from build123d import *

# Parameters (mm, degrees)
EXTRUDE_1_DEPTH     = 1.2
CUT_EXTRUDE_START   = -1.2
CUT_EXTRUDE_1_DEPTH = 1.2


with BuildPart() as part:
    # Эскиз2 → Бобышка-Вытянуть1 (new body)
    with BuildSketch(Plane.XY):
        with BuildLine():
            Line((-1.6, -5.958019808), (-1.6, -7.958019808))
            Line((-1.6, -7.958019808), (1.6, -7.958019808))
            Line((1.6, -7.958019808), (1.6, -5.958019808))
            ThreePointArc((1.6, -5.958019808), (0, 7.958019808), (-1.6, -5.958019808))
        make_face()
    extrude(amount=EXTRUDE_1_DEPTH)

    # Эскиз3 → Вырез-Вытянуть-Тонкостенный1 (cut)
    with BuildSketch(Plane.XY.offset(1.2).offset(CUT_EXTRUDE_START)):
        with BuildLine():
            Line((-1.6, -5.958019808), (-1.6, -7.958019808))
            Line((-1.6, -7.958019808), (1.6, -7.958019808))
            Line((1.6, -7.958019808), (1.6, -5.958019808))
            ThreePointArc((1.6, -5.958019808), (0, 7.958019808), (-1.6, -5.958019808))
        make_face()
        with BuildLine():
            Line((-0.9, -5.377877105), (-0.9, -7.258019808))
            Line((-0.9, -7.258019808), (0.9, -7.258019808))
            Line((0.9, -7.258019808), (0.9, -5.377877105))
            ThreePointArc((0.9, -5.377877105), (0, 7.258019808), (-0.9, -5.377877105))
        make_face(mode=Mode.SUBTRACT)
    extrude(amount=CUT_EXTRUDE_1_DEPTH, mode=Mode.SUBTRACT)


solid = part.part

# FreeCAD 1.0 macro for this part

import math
import FreeCAD as App
import Part
import Sketcher

doc = App.newDocument("Part")
body = doc.addObject("PartDesign::Body", "Body")

# Sketch on XY plane
sketch1 = doc.addObject("Sketcher::SketchObject", "Sketch")
body.addObject(sketch1)
sketch1.AttachmentSupport = (doc.XY_Plane, [""])
sketch1.MapMode = "FlatFace"
sketch1.addGeometry(Part.LineSegment(App.Vector(-1.6, -6, 0), App.Vector(-1.6, -8, 0)), False)
sketch1.addGeometry(Part.LineSegment(App.Vector(-1.6, -8, 0), App.Vector(1.6, -8, 0)), False)
sketch1.addGeometry(Part.LineSegment(App.Vector(1.6, -8, 0), App.Vector(1.6, -6, 0)), False)
sketch1.addGeometry(Part.ArcOfCircle(Part.Circle(App.Vector(0, 0.9, 0), App.Vector(0, 0, 1), 7), math.radians(-77), math.radians(257)), False)
sketch1.addConstraint(Sketcher.Constraint("Coincident", 0, 2, 1, 1))
sketch1.addConstraint(Sketcher.Constraint("Coincident", 1, 2, 2, 1))
sketch1.addConstraint(Sketcher.Constraint("Coincident", 2, 2, 3, 1))
sketch1.addConstraint(Sketcher.Constraint("Coincident", 3, 2, 0, 1))
sketch1.addConstraint(Sketcher.Constraint("Vertical", 0))
sketch1.addConstraint(Sketcher.Constraint("Horizontal", 1))
sketch1.addConstraint(Sketcher.Constraint("Vertical", 2))
sketch1.addConstraint(Sketcher.Constraint("Symmetric", 2, 2, 3, 2, -2))
sketch1.addConstraint(Sketcher.Constraint("DistanceY", 0, 2, 0, 1, 2.0))
sketch1.addConstraint(Sketcher.Constraint("Radius", 3, 7.05))
sketch1.addConstraint(Sketcher.Constraint("DistanceX", 1, 1, 1, 2, 3.2))
sketch1.addConstraint(Sketcher.Constraint("DistanceY", -1, 1, 3, 3, 0.90802))
pad1 = doc.addObject("PartDesign::Pad", "Pad")
body.addObject(pad1)
pad1.Profile = sketch1
pad1.Length = 1.2

# Sketch on XY plane
sketch2 = doc.addObject("Sketcher::SketchObject", "Sketch001")
body.addObject(sketch2)
sketch2.AttachmentSupport = (doc.XY_Plane, [""])
sketch2.MapMode = "FlatFace"
sketch2.addGeometry(Part.LineSegment(App.Vector(-1.6, -6, 0), App.Vector(-1.6, -8, 0)), False)
sketch2.addGeometry(Part.LineSegment(App.Vector(-1.6, -8, 0), App.Vector(1.6, -8, 0)), False)
sketch2.addGeometry(Part.LineSegment(App.Vector(1.6, -8, 0), App.Vector(1.6, -6, 0)), False)
sketch2.addGeometry(Part.ArcOfCircle(Part.Circle(App.Vector(0, 0.9, 0), App.Vector(0, 0, 1), 7), math.radians(-77), math.radians(257)), False)
sketch2.addGeometry(Part.LineSegment(App.Vector(-0.9, -7.3, 0), App.Vector(-0.9, -5.4, 0)), False)
sketch2.addGeometry(Part.ArcOfCircle(Part.Circle(App.Vector(0, 0.9, 0), App.Vector(0, 0, 1), 6.3), math.radians(-82), math.radians(262)), False)
sketch2.addGeometry(Part.LineSegment(App.Vector(0.9, -5.4, 0), App.Vector(0.9, -7.3, 0)), False)
sketch2.addGeometry(Part.LineSegment(App.Vector(0.9, -7.3, 0), App.Vector(-0.9, -7.3, 0)), False)
sketch2.addConstraint(Sketcher.Constraint("Coincident", 0, 2, 1, 1))
sketch2.addConstraint(Sketcher.Constraint("Coincident", 1, 2, 2, 1))
sketch2.addConstraint(Sketcher.Constraint("Coincident", 2, 2, 3, 1))
sketch2.addConstraint(Sketcher.Constraint("Coincident", 3, 2, 0, 1))
sketch2.addConstraint(Sketcher.Constraint("Coincident", 4, 2, 5, 2))
sketch2.addConstraint(Sketcher.Constraint("Coincident", 5, 1, 6, 1))
sketch2.addConstraint(Sketcher.Constraint("Coincident", 6, 2, 7, 1))
sketch2.addConstraint(Sketcher.Constraint("Coincident", 7, 2, 4, 1))
sketch2.addConstraint(Sketcher.Constraint("Vertical", 0))
sketch2.addConstraint(Sketcher.Constraint("Horizontal", 1))
sketch2.addConstraint(Sketcher.Constraint("Vertical", 2))
sketch2.addConstraint(Sketcher.Constraint("Vertical", 4))
sketch2.addConstraint(Sketcher.Constraint("Vertical", 6))
sketch2.addConstraint(Sketcher.Constraint("Horizontal", 7))
sketch2.addConstraint(Sketcher.Constraint("Coincident", 5, 3, 3, 3))
sketch2.addConstraint(Sketcher.Constraint("Symmetric", 2, 2, 3, 2, -2))
sketch2.addConstraint(Sketcher.Constraint("Horizontal", 4, 2, 5, 1))
sketch2.addConstraint(Sketcher.Constraint("DistanceY", 0, 2, 0, 1, 2.0))
sketch2.addConstraint(Sketcher.Constraint("Radius", 3, 7.05))
sketch2.addConstraint(Sketcher.Constraint("Radius", 5, 6.35))
sketch2.addConstraint(Sketcher.Constraint("DistanceX", 1, 1, 1, 2, 3.2))
sketch2.addConstraint(Sketcher.Constraint("DistanceX", 7, 2, 7, 1, 1.8))
sketch2.addConstraint(Sketcher.Constraint("DistanceY", 1, 2, 6, 2, 0.7))
sketch2.addConstraint(Sketcher.Constraint("DistanceY", -1, 1, 3, 3, 0.90802))
pocket1 = doc.addObject("PartDesign::Pocket", "Pocket")
body.addObject(pocket1)
pocket1.Profile = sketch2
pocket1.Length = 1.2
pocket1.Reversed = True

doc.recompute()
